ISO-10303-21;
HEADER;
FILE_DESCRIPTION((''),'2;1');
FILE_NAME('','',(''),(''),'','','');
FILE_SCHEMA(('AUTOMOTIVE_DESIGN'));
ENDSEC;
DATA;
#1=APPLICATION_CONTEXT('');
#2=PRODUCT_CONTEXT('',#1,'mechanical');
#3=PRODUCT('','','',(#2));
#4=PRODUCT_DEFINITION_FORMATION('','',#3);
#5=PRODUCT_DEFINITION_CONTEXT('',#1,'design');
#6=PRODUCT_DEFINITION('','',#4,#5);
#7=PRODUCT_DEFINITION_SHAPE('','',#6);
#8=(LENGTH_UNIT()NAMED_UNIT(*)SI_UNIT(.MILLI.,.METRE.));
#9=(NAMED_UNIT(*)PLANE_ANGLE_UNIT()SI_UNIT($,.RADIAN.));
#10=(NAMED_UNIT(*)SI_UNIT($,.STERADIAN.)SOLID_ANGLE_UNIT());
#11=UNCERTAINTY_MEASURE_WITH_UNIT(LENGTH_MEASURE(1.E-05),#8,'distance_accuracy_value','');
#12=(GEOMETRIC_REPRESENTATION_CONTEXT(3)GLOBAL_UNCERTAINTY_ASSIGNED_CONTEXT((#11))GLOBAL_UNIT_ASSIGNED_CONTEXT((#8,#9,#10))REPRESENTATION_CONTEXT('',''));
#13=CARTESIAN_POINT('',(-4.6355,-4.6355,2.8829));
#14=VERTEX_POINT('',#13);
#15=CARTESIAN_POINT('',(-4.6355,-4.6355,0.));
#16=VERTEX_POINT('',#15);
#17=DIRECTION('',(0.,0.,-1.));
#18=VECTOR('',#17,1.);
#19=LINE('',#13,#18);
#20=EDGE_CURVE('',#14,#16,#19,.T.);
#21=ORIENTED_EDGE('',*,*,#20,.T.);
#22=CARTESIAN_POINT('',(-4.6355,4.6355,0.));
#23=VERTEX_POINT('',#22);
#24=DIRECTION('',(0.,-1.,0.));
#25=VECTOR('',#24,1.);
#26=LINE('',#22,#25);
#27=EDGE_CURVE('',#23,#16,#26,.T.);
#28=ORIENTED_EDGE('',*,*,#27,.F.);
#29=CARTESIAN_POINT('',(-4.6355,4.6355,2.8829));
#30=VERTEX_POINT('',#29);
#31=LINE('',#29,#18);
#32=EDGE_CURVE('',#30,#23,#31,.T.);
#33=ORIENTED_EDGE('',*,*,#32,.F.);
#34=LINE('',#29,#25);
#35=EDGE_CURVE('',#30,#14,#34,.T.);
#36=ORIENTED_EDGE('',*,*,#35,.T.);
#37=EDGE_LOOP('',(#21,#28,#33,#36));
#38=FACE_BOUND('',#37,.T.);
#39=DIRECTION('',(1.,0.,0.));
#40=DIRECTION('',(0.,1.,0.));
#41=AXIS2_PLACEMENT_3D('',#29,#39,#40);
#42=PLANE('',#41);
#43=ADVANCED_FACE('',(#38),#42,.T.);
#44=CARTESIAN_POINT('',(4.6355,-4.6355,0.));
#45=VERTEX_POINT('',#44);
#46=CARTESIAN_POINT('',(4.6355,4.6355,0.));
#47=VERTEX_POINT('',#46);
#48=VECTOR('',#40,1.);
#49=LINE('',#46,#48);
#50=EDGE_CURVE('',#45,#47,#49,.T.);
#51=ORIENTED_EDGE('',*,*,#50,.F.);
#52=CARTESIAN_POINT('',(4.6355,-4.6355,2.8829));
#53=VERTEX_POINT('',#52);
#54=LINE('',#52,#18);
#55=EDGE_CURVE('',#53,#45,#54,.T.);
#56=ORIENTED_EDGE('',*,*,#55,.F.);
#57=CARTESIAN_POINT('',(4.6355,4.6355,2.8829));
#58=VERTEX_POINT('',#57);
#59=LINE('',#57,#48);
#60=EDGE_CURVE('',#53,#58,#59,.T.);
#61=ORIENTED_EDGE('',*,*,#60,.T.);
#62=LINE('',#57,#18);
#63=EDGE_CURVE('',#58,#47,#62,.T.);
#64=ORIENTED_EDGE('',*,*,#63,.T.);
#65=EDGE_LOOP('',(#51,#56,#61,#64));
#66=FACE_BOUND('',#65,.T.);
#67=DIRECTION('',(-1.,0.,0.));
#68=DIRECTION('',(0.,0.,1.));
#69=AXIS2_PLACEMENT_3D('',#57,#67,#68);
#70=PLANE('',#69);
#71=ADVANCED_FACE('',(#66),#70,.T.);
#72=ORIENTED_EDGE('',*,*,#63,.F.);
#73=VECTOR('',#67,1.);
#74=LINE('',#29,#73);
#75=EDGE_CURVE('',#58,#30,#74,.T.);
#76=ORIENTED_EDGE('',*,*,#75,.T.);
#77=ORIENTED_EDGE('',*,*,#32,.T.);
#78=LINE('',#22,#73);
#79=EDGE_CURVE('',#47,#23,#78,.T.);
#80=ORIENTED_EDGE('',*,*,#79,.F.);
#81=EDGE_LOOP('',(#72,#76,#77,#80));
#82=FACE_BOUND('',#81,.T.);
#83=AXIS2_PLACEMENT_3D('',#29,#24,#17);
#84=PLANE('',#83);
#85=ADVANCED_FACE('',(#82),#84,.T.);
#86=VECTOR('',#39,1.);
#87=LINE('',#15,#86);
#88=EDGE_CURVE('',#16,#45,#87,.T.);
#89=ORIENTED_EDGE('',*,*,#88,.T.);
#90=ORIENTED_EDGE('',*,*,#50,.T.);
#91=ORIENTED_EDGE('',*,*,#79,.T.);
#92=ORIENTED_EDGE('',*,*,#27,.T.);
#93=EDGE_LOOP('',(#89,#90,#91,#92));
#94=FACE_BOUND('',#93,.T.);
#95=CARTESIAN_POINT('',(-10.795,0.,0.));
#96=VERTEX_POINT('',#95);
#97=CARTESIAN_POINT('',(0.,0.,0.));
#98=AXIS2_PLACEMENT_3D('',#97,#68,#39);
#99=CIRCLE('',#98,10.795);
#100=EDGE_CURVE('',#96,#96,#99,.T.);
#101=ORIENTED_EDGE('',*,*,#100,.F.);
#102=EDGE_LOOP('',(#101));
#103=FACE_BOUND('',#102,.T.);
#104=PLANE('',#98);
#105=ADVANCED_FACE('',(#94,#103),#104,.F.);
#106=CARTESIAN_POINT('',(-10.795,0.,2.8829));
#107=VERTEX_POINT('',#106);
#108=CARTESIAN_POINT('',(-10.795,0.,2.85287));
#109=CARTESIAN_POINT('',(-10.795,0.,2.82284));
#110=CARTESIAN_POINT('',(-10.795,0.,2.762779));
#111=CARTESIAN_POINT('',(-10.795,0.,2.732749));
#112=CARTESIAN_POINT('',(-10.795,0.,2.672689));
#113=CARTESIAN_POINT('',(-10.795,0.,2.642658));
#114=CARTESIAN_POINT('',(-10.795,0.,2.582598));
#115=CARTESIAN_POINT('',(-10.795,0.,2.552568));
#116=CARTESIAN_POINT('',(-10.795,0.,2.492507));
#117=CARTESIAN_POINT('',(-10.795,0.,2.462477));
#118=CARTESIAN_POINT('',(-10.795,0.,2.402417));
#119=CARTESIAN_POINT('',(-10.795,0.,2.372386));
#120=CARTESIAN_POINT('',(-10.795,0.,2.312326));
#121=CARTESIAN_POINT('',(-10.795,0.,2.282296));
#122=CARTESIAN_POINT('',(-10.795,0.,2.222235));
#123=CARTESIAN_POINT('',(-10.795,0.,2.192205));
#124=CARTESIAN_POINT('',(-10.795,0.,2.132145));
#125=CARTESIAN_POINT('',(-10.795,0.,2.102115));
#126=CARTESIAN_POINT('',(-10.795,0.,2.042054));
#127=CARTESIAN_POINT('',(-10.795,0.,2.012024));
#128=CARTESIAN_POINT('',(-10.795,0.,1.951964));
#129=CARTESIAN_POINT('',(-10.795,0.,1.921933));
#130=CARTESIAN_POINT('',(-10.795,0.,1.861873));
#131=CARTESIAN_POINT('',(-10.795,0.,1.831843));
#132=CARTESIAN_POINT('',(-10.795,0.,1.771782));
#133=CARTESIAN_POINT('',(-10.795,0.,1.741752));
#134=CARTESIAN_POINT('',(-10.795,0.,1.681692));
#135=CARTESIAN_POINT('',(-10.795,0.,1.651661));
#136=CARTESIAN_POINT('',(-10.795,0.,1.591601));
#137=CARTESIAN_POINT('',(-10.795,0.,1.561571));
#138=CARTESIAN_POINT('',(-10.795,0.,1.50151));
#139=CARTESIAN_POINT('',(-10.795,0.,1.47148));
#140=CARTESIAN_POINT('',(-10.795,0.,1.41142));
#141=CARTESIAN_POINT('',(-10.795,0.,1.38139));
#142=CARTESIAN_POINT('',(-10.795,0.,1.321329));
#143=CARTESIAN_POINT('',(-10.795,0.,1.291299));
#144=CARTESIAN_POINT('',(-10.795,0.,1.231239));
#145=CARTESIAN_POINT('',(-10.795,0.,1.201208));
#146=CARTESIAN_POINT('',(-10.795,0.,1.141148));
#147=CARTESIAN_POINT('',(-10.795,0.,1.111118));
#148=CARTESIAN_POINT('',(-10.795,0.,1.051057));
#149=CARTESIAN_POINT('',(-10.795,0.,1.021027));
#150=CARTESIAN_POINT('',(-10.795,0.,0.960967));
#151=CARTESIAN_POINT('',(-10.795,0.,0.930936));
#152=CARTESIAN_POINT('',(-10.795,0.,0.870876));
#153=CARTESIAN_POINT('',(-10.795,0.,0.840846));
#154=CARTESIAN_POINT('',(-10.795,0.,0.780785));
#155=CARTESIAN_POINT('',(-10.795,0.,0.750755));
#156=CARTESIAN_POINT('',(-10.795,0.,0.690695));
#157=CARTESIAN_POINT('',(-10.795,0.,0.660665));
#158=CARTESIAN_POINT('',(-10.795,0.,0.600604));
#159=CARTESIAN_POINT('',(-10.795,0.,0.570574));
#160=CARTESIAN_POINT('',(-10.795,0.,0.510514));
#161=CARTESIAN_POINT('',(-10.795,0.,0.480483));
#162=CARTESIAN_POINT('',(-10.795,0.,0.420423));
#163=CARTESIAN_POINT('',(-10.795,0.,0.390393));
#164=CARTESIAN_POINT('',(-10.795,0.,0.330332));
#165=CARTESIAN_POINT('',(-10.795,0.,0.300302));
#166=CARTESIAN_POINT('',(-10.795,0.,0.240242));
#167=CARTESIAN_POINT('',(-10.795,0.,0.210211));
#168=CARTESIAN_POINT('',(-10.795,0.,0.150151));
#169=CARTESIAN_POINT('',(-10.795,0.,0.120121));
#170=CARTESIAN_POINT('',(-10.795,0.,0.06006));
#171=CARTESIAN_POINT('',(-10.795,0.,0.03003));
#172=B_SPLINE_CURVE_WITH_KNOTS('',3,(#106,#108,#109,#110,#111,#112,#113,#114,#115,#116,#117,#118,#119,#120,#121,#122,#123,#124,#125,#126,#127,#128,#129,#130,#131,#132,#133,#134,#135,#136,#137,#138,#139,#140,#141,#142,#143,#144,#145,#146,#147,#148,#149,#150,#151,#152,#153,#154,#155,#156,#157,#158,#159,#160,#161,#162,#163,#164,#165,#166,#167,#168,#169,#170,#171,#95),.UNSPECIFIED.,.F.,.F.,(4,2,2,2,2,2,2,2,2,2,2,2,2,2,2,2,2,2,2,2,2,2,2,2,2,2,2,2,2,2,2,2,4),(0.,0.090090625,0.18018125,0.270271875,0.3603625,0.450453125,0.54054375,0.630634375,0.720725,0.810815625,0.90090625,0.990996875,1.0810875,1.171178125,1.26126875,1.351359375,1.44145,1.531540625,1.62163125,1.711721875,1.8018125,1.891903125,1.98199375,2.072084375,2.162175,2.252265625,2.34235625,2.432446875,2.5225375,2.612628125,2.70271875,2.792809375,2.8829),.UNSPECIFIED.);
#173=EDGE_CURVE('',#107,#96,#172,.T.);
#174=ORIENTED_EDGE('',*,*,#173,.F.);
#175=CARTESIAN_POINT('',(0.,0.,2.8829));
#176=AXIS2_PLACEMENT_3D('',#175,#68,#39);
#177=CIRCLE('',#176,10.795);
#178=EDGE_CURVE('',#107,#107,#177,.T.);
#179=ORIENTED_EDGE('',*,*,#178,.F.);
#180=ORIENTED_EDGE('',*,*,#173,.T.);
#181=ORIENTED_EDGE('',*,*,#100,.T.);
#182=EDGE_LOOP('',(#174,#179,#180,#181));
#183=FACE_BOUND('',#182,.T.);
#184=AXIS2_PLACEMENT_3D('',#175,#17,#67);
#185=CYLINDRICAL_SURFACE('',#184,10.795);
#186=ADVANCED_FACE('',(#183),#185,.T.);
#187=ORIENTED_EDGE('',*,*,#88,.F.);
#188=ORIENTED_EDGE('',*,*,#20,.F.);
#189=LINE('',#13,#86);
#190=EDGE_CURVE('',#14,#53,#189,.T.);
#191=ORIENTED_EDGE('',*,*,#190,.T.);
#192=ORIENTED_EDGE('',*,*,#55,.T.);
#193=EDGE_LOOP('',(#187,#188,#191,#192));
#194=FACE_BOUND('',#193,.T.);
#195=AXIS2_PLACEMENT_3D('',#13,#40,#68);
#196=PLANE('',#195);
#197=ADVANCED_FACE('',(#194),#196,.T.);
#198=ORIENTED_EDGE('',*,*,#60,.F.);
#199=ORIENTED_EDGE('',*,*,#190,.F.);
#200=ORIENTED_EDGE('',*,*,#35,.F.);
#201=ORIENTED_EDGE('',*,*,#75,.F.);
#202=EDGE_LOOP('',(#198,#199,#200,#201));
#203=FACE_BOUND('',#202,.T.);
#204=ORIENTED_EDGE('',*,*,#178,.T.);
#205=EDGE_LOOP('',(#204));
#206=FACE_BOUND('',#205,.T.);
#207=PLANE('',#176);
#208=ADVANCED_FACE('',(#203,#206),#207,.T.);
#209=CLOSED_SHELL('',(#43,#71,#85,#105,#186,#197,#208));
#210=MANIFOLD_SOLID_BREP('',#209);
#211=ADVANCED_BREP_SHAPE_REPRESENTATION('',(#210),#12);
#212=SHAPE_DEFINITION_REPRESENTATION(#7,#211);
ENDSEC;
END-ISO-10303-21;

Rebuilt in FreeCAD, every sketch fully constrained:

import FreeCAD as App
import Part
import Sketcher

V = App.Vector
Q = App.Units.Quantity


def add_polygon(sketch, points):
    """Adds a closed chain of lines whose ends are joined by coincident constraints."""
    first, n = sketch.GeometryCount, len(points)
    for a, b in zip(points, points[1:] + points[:1]):
        sketch.addGeometry(Part.LineSegment(App.Vector(*a, 0), App.Vector(*b, 0)), False)
    for i in range(n):
        sketch.addConstraint(Sketcher.Constraint("Coincident", first + i, 2, first + (i + 1) % n, 1))

doc = App.newDocument("Part")
params = doc.addObject("Spreadsheet::Sheet", "Params")
for row, (alias, value) in enumerate([
    ("sketch1_diameter", "0.85 in"),
    ("sketch1_width", "0.365 in"),
    ("pad1_length", "0.1135 in"),
], start=1):
    params.set(f"A{row}", alias)
    params.set(f"B{row}", "=" + value)
    params.setAlias(f"B{row}", alias)

body = doc.addObject("PartDesign::Body", "Body")

# Sketch on XY plane
sketch1 = body.newObject("Sketcher::SketchObject", "Sketch")
sketch1.AttachmentSupport = (doc.getObject("XY_Plane"), [""])
sketch1.MapMode = "FlatFace"
sketch1.addGeometry(Part.Circle(V(0, 0, 0), V(0, 0, 1), 10.795), False)  # 0
add_polygon(sketch1, [(4.6355, -4.6355), (-4.6355, -4.6355), (-4.6355, 4.6355), (4.6355, 4.6355)])  # lines 1-4
sketch1.addConstraint([
    Sketcher.Constraint("Horizontal", 1),
    Sketcher.Constraint("Vertical", 2),
    Sketcher.Constraint("Horizontal", 3),
    Sketcher.Constraint("Vertical", 4),
    Sketcher.Constraint("Coincident", 0, 3, -1, 1),
    Sketcher.Constraint("Symmetric", 1, 2, 3, 2, -1, 1),
    Sketcher.Constraint("Equal", 3, 2),
    Sketcher.Constraint("Diameter", 0, Q("0.85 in")),
    Sketcher.Constraint("DistanceX", 1, 2, 1, 1, Q("0.365 in")),
])
sketch1.setExpression("Constraints[11]", "Params.sketch1_diameter")
sketch1.setExpression("Constraints[12]", "Params.sketch1_width")
pad1 = body.newObject("PartDesign::Pad", "Pad")
pad1.Profile = sketch1
pad1.setExpression("Length", "Params.pad1_length")

doc.recompute()
